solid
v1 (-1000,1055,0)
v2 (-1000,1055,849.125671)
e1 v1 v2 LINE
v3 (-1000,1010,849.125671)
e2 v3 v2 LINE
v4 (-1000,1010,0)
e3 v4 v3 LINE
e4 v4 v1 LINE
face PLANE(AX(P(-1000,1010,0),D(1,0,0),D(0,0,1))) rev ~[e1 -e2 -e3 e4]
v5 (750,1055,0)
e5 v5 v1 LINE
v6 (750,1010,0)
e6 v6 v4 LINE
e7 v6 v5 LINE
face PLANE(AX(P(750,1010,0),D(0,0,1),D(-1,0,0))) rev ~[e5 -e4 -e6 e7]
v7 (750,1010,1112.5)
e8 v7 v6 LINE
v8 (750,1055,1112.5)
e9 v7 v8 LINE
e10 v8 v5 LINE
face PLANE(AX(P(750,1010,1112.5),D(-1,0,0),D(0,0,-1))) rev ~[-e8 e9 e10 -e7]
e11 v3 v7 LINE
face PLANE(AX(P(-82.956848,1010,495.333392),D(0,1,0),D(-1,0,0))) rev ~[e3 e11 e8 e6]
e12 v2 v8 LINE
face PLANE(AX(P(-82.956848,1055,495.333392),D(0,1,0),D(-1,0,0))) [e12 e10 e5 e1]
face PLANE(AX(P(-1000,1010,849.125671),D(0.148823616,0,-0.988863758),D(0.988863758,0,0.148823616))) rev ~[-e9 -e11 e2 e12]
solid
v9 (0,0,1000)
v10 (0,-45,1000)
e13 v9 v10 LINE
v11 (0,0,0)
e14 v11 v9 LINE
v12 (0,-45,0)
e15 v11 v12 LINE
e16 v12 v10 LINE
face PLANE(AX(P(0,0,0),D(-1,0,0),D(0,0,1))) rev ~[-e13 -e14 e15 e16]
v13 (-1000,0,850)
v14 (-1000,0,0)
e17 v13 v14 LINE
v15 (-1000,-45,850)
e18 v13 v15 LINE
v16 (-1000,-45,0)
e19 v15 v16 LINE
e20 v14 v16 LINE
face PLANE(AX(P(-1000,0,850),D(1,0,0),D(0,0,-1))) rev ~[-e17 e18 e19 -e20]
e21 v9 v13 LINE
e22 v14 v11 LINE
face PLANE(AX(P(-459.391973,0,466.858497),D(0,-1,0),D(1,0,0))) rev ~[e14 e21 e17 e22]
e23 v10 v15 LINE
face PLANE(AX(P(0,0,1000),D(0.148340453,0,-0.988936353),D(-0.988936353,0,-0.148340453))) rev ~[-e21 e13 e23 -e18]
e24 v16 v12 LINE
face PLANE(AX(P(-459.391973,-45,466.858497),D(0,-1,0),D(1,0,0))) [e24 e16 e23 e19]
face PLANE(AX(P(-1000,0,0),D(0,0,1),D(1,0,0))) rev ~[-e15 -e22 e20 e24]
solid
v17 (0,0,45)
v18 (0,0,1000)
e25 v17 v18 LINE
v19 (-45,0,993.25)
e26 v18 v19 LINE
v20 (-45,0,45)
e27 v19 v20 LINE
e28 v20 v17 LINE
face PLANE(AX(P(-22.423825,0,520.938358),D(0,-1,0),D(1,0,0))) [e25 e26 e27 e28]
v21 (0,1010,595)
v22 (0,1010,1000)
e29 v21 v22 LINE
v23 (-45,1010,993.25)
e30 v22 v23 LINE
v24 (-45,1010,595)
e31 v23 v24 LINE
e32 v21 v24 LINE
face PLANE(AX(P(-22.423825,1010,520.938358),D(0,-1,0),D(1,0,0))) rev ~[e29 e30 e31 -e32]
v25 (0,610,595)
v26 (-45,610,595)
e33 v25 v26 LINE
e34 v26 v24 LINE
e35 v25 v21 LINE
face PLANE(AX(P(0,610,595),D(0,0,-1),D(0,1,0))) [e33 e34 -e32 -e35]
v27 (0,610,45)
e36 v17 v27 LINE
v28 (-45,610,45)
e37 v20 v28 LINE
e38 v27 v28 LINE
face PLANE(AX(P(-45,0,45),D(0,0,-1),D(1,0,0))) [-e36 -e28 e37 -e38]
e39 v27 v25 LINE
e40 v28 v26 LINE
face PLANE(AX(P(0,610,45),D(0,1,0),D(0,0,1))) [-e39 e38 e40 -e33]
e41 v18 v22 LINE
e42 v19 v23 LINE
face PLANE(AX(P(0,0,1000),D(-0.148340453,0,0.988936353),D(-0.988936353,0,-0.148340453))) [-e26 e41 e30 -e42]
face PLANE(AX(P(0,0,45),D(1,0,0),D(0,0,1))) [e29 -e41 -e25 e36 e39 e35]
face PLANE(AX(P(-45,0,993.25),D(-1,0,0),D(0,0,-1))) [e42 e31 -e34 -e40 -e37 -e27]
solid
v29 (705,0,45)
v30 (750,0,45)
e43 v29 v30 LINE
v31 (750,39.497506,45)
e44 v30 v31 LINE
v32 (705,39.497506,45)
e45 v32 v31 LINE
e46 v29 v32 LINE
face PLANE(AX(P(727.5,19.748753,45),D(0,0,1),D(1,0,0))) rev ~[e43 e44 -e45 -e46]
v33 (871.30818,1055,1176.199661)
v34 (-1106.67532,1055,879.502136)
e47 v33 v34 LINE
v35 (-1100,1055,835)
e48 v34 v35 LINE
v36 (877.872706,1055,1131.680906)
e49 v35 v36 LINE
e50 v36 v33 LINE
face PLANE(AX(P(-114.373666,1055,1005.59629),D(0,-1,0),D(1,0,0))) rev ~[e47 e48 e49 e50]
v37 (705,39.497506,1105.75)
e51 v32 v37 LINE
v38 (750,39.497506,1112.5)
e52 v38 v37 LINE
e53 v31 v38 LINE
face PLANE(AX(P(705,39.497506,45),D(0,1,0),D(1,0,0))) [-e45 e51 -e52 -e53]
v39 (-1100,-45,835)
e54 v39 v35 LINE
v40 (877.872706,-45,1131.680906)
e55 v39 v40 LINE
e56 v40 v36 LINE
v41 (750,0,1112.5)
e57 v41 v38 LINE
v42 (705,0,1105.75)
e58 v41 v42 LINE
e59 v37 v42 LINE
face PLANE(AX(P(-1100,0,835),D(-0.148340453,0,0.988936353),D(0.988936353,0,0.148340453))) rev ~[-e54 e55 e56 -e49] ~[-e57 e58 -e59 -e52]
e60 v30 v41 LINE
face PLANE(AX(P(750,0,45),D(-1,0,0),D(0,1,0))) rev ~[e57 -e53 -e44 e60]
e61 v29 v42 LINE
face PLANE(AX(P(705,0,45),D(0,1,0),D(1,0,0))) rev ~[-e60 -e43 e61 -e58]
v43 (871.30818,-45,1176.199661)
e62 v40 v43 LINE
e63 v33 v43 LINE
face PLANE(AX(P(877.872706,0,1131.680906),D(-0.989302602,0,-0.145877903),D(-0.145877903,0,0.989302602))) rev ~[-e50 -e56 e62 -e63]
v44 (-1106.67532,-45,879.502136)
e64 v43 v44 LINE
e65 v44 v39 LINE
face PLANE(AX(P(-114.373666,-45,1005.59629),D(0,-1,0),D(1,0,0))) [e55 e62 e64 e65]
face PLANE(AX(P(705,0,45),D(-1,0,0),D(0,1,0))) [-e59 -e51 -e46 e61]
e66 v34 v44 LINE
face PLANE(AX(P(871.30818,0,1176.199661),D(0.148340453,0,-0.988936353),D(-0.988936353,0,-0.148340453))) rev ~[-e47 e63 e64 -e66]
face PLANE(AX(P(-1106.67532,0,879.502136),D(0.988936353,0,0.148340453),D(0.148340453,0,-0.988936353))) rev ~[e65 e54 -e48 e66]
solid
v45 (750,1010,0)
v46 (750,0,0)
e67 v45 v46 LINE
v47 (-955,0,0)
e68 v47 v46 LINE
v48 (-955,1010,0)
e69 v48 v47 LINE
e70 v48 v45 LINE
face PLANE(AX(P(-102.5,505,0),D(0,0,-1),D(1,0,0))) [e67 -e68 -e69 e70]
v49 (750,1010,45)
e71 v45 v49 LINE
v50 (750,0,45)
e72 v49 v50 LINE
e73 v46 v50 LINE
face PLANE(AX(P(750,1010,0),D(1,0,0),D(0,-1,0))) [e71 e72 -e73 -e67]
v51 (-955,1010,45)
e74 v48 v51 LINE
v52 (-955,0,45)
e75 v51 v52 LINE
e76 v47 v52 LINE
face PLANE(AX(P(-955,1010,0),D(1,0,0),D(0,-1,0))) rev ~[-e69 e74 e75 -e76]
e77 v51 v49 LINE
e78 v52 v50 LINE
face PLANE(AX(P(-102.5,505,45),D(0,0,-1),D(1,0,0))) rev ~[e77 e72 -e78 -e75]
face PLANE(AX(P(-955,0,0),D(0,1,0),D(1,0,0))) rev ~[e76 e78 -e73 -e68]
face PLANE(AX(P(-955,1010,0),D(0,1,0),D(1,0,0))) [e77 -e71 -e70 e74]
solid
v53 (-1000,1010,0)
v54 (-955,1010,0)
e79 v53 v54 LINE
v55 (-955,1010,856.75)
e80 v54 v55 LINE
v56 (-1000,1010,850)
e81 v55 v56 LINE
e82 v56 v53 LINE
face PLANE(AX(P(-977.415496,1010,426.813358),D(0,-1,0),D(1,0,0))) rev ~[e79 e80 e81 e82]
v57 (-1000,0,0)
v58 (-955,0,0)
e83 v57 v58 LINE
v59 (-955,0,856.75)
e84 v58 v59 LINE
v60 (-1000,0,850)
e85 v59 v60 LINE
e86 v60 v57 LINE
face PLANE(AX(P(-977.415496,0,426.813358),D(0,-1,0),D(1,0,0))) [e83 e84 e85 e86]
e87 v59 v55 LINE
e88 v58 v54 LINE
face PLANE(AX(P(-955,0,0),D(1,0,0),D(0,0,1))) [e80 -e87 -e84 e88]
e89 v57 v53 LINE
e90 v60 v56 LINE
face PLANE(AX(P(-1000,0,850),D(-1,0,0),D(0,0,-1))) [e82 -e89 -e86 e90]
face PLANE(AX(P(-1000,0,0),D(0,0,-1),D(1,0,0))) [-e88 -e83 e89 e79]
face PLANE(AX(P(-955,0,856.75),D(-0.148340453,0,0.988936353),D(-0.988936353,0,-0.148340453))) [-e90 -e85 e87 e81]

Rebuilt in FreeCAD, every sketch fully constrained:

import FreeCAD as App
import Part
import Sketcher

V = App.Vector

doc = App.newDocument("Part")
body = doc.addObject("PartDesign::Body", "Body")

# Sketch on XZ plane
sketch1 = body.newObject("Sketcher::SketchObject", "Sketch")
sketch1.AttachmentSupport = (doc.getObject("XZ_Plane"), [""])
sketch1.MapMode = "FlatFace"
sketch1.addGeometry([
    Part.LineSegment(V(-955, 0, 0), V(-955, 857, 0)),
    Part.LineSegment(V(-955, 857, 0), V(-1000, 850, 0)),
    Part.LineSegment(V(-1000, 850, 0), V(-1000, 0, 0)),
    Part.LineSegment(V(-1000, 0, 0), V(-955, 0, 0)),
], False)
sketch1.addConstraint([
    Sketcher.Constraint("Coincident", 0, 2, 1, 1),
    Sketcher.Constraint("Coincident", 1, 2, 2, 1),
    Sketcher.Constraint("Coincident", 2, 2, 3, 1),
    Sketcher.Constraint("Coincident", 3, 2, 0, 1),
    Sketcher.Constraint("Vertical", 0),
    Sketcher.Constraint("Vertical", 2),
    Sketcher.Constraint("Horizontal", 3),
    Sketcher.Constraint("PointOnObject", 2, 2, -1),
    Sketcher.Constraint("DistanceX", 3, 1, 3, 2, 45.0),
    Sketcher.Constraint("DistanceY", 2, 2, 2, 1, 850.0),
    Sketcher.Constraint("DistanceX", 0, 2, -1, 1, 955.0),
    Sketcher.Constraint("DistanceY", 0, 1, 0, 2, 856.75),
])
pad1 = body.newObject("PartDesign::Pad", "Pad")
pad1.Profile = sketch1
pad1.Length = 1010
pad1.Reversed = True
body2 = doc.addObject("PartDesign::Body", "Body001")

# Sketch on XZ plane
sketch2 = body2.newObject("Sketcher::SketchObject", "Sketch001")
sketch2.AttachmentSupport = (doc.getObject("XZ_Plane001"), [""])
sketch2.MapMode = "FlatFace"
sketch2.addGeometry([
    Part.LineSegment(V(0, 45, 0), V(0, 1000, 0)),
    Part.LineSegment(V(0, 1000, 0), V(-45, 993, 0)),
    Part.LineSegment(V(-45, 993, 0), V(-45, 45, 0)),
    Part.LineSegment(V(-45, 45, 0), V(0, 45, 0)),
], False)
sketch2.addConstraint([
    Sketcher.Constraint("Coincident", 0, 2, 1, 1),
    Sketcher.Constraint("Coincident", 1, 2, 2, 1),
    Sketcher.Constraint("Coincident", 2, 2, 3, 1),
    Sketcher.Constraint("Coincident", 3, 2, 0, 1),
    Sketcher.Constraint("Vertical", 0),
    Sketcher.Constraint("Vertical", 2),
    Sketcher.Constraint("Horizontal", 3),
    Sketcher.Constraint("PointOnObject", 0, 2, -2),
    Sketcher.Constraint("DistanceX", 3, 1, 3, 2, 45.0),
    Sketcher.Constraint("DistanceY", 0, 1, 0, 2, 955.0),
    Sketcher.Constraint("DistanceY", -1, 1, 0, 2, 1000.0),
    Sketcher.Constraint("DistanceY", 2, 2, 2, 1, 948.25),
])
pad2 = body2.newObject("PartDesign::Pad", "Pad001")
pad2.Profile = sketch2
pad2.Length = 1010
pad2.Reversed = True

# Sketch on YZ plane
sketch3 = body2.newObject("Sketcher::SketchObject", "Sketch002")
sketch3.AttachmentSupport = (doc.getObject("YZ_Plane001"), [""])
sketch3.MapMode = "FlatFace"
sketch3.addGeometry([
    Part.LineSegment(V(610, 595, 0), V(610, 45, 0)),
    Part.LineSegment(V(610, 45, 0), V(1010, 45, 0)),
    Part.LineSegment(V(1010, 45, 0), V(1010, 595, 0)),
    Part.LineSegment(V(1010, 595, 0), V(610, 595, 0)),
], False)
sketch3.addConstraint([
    Sketcher.Constraint("Coincident", 0, 2, 1, 1),
    Sketcher.Constraint("Coincident", 1, 2, 2, 1),
    Sketcher.Constraint("Coincident", 2, 2, 3, 1),
    Sketcher.Constraint("Coincident", 3, 2, 0, 1),
    Sketcher.Constraint("Vertical", 0),
    Sketcher.Constraint("Horizontal", 1),
    Sketcher.Constraint("Vertical", 2),
    Sketcher.Constraint("Horizontal", 3),
    Sketcher.Constraint("DistanceX", 1, 1, 1, 2, 400.0),
    Sketcher.Constraint("DistanceY", 0, 2, 0, 1, 550.0),
    Sketcher.Constraint("DistanceX", -1, 1, 0, 2, 610.0),
    Sketcher.Constraint("DistanceY", -1, 1, 0, 2, 45.0),
])
pocket1 = body2.newObject("PartDesign::Pocket", "Pocket")
pocket1.Profile = sketch3
pocket1.Type = "ThroughAll"
body3 = doc.addObject("PartDesign::Body", "Body002")

# Sketch on XZ plane
sketch4 = body3.newObject("Sketcher::SketchObject", "Sketch003")
sketch4.AttachmentSupport = (doc.getObject("XZ_Plane002"), [""])
sketch4.MapMode = "FlatFace"
sketch4.addGeometry([
    Part.LineSegment(V(878, 1132, 0), V(871, 1176, 0)),
    Part.LineSegment(V(871, 1176, 0), V(-1107, 880, 0)),
    Part.LineSegment(V(-1107, 880, 0), V(-1100, 835, 0)),
    Part.LineSegment(V(-1100, 835, 0), V(878, 1132, 0)),
], False)
sketch4.addConstraint([
    Sketcher.Constraint("Coincident", 0, 2, 1, 1),
    Sketcher.Constraint("Coincident", 1, 2, 2, 1),
    Sketcher.Constraint("Coincident", 2, 2, 3, 1),
    Sketcher.Constraint("Coincident", 3, 2, 0, 1),
    Sketcher.Constraint("Perpendicular", 1, 2),
    Sketcher.Constraint("Perpendicular", 2, 3),
    Sketcher.Constraint("Distance", 2, 45.0),
    Sketcher.Constraint("Distance", 3, 2000.0),
    Sketcher.Constraint("DistanceX", 2, 2, -1, 1, 1100.0),
    Sketcher.Constraint("DistanceY", -1, 1, 2, 2, 835.0),
    Sketcher.Constraint("DistanceX", 1, 2, 0, 2, 1977.9835),
    Sketcher.Constraint("DistanceX", -1, 1, 0, 2, 871.30818),
])
pad3 = body3.newObject("PartDesign::Pad", "Pad002")
pad3.Profile = sketch4
pad3.Length = 1055
pad3.Reversed = True

# Sketch on XZ plane
sketch5 = body3.newObject("Sketcher::SketchObject", "Sketch004")
sketch5.AttachmentSupport = (doc.getObject("XZ_Plane002"), [""])
sketch5.MapMode = "FlatFace"
sketch5.addGeometry([
    Part.LineSegment(V(878, 1132, 0), V(871, 1176, 0)),
    Part.LineSegment(V(871, 1176, 0), V(-1107, 880, 0)),
    Part.LineSegment(V(-1107, 880, 0), V(-1100, 835, 0)),
    Part.LineSegment(V(-1100, 835, 0), V(878, 1132, 0)),
], False)
sketch5.addConstraint([
    Sketcher.Constraint("Coincident", 0, 2, 1, 1),
    Sketcher.Constraint("Coincident", 1, 2, 2, 1),
    Sketcher.Constraint("Coincident", 2, 2, 3, 1),
    Sketcher.Constraint("Coincident", 3, 2, 0, 1),
    Sketcher.Constraint("Perpendicular", 1, 2),
    Sketcher.Constraint("Perpendicular", 2, 3),
    Sketcher.Constraint("Distance", 2, 45.0),
    Sketcher.Constraint("Distance", 3, 2000.0),
    Sketcher.Constraint("DistanceX", 2, 2, -1, 1, 1100.0),
    Sketcher.Constraint("DistanceY", -1, 1, 2, 2, 835.0),
    Sketcher.Constraint("DistanceX", 1, 2, 0, 2, 1977.9835),
    Sketcher.Constraint("DistanceX", -1, 1, 0, 2, 871.30818),
])
pad4 = body3.newObject("PartDesign::Pad", "Pad003")
pad4.Profile = sketch5
pad4.Length = 45

# Sketch on XY plane
sketch6 = body3.newObject("Sketcher::SketchObject", "Sketch005")
sketch6.AttachmentSupport = (doc.getObject("XY_Plane002"), [""])
sketch6.MapMode = "FlatFace"
sketch6.AttachmentOffset = App.Placement(V(0, 0, 45), App.Rotation())
sketch6.addGeometry([
    Part.LineSegment(V(705, 39, 0), V(705, 0, 0)),
    Part.LineSegment(V(705, 0, 0), V(750, 0, 0)),
    Part.LineSegment(V(750, 0, 0), V(750, 39, 0)),
    Part.LineSegment(V(750, 39, 0), V(705, 39, 0)),
], False)
sketch6.addConstraint([
    Sketcher.Constraint("Coincident", 0, 2, 1, 1),
    Sketcher.Constraint("Coincident", 1, 2, 2, 1),
    Sketcher.Constraint("Coincident", 2, 2, 3, 1),
    Sketcher.Constraint("Coincident", 3, 2, 0, 1),
    Sketcher.Constraint("Vertical", 0),
    Sketcher.Constraint("Horizontal", 1),
    Sketcher.Constraint("Vertical", 2),
    Sketcher.Constraint("Horizontal", 3),
    Sketcher.Constraint("PointOnObject", 0, 2, -1),
    Sketcher.Constraint("DistanceX", 1, 1, 1, 2, 45.0),
    Sketcher.Constraint("DistanceX", -1, 1, 0, 2, 705.0),
    Sketcher.Constraint("DistanceY", 0, 2, 0, 1, 39.497506),
])
pad5 = body3.newObject("PartDesign::Pad", "Pad004")
pad5.Profile = sketch6
pad5.Type = "UpToLast"
body4 = doc.addObject("PartDesign::Body", "Body003")

# Sketch on XZ plane
sketch7 = body4.newObject("Sketcher::SketchObject", "Sketch006")
sketch7.AttachmentSupport = (doc.getObject("XZ_Plane003"), [""])
sketch7.MapMode = "FlatFace"
sketch7.AttachmentOffset = App.Placement(V(0, 0, -1010), App.Rotation())
sketch7.addGeometry([
    Part.LineSegment(V(750, 1112, 0), V(750, 0, 0)),
    Part.LineSegment(V(750, 0, 0), V(-1000, 0, 0)),
    Part.LineSegment(V(-1000, 0, 0), V(-1000, 849, 0)),
    Part.LineSegment(V(-1000, 849, 0), V(750, 1112, 0)),
], False)
sketch7.addConstraint([
    Sketcher.Constraint("Coincident", 0, 2, 1, 1),
    Sketcher.Constraint("Coincident", 1, 2, 2, 1),
    Sketcher.Constraint("Coincident", 2, 2, 3, 1),
    Sketcher.Constraint("Coincident", 3, 2, 0, 1),
    Sketcher.Constraint("Vertical", 0),
    Sketcher.Constraint("Horizontal", 1),
    Sketcher.Constraint("Vertical", 2),
    Sketcher.Constraint("PointOnObject", 0, 2, -1),
    Sketcher.Constraint("DistanceX", 1, 2, 1, 1, 1750.0),
    Sketcher.Constraint("DistanceY", 0, 2, 0, 1, 1112.5),
    Sketcher.Constraint("DistanceX", -1, 1, 0, 2, 750.0),
    Sketcher.Constraint("DistanceY", 2, 1, 2, 2, 849.125671),
])
pad6 = body4.newObject("PartDesign::Pad", "Pad005")
pad6.Profile = sketch7
pad6.Length = 45
pad6.Reversed = True
body5 = doc.addObject("PartDesign::Body", "Body004")

# Sketch on XY plane
sketch8 = body5.newObject("Sketcher::SketchObject", "Sketch007")
sketch8.AttachmentSupport = (doc.getObject("XY_Plane004"), [""])
sketch8.MapMode = "FlatFace"
sketch8.addGeometry([
    Part.LineSegment(V(-955, 0, 0), V(-955, 1010, 0)),
    Part.LineSegment(V(-955, 1010, 0), V(750, 1010, 0)),
    Part.LineSegment(V(750, 1010, 0), V(750, 0, 0)),
    Part.LineSegment(V(750, 0, 0), V(-955, 0, 0)),
], False)
sketch8.addConstraint([
    Sketcher.Constraint("Coincident", 0, 2, 1, 1),
    Sketcher.Constraint("Coincident", 1, 2, 2, 1),
    Sketcher.Constraint("Coincident", 2, 2, 3, 1),
    Sketcher.Constraint("Coincident", 3, 2, 0, 1),
    Sketcher.Constraint("Vertical", 0),
    Sketcher.Constraint("Horizontal", 1),
    Sketcher.Constraint("Vertical", 2),
    Sketcher.Constraint("Horizontal", 3),
    Sketcher.Constraint("PointOnObject", 2, 2, -1),
    Sketcher.Constraint("DistanceX", 1, 1, 1, 2, 1705.0),
    Sketcher.Constraint("DistanceY", 0, 1, 0, 2, 1010.0),
    Sketcher.Constraint("DistanceX", 0, 2, -1, 1, 955.0),
])
pad7 = body5.newObject("PartDesign::Pad", "Pad006")
pad7.Profile = sketch8
pad7.Length = 45
body6 = doc.addObject("PartDesign::Body", "Body005")

# Sketch on XZ plane
sketch9 = body6.newObject("Sketcher::SketchObject", "Sketch008")
sketch9.AttachmentSupport = (doc.getObject("XZ_Plane005"), [""])
sketch9.MapMode = "FlatFace"
sketch9.addGeometry([
    Part.LineSegment(V(0, 1000, 0), V(-1000, 850, 0)),
    Part.LineSegment(V(-1000, 850, 0), V(-1000, 0, 0)),
    Part.LineSegment(V(-1000, 0, 0), V(0, 0, 0)),
    Part.LineSegment(V(0, 0, 0), V(0, 1000, 0)),
], False)
sketch9.addConstraint([
    Sketcher.Constraint("Coincident", 0, 2, 1, 1),
    Sketcher.Constraint("Coincident", 1, 2, 2, 1),
    Sketcher.Constraint("Coincident", 2, 2, 3, 1),
    Sketcher.Constraint("Coincident", 3, 2, 0, 1),
    Sketcher.Constraint("Vertical", 1),
    Sketcher.Constraint("Horizontal", 2),
    Sketcher.Constraint("Vertical", 3),
    Sketcher.Constraint("Coincident", 2, 2, -1, 1),
    Sketcher.Constraint("Equal", 2, 3),
    Sketcher.Constraint("DistanceX", 2, 1, 2, 2, 1000.0),
    Sketcher.Constraint("DistanceY", 1, 2, 1, 1, 850.0),
])
pad8 = body6.newObject("PartDesign::Pad", "Pad007")
pad8.Profile = sketch9
pad8.Length = 45

doc.recompute()
